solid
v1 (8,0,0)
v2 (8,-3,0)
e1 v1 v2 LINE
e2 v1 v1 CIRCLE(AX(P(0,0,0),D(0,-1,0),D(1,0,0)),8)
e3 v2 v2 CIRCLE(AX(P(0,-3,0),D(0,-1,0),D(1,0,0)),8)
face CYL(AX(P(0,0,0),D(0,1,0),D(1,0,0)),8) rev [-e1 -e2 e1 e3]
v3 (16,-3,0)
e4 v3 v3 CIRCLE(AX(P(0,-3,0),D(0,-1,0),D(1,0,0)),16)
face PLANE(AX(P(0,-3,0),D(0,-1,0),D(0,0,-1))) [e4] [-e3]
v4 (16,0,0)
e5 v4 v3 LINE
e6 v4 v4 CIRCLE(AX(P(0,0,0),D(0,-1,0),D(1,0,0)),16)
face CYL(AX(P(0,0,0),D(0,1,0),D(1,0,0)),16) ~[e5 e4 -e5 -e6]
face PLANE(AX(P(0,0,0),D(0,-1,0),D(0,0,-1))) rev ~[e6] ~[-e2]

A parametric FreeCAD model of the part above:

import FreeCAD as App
import Part
import Sketcher
from FreeCAD import Vector
Q = App.Units.Quantity

doc = App.newDocument("Part")
body = doc.addObject("PartDesign::Body", "Body")

sketch1 = body.newObject("Sketcher::SketchObject", "Sketch")
sketch1.AttachmentSupport = (doc.getObject("XZ_Plane"), [""])
sketch1.MapMode = "FlatFace"
sketch1.addGeometry(Part.Circle(Vector(0, 0, 0), Vector(0, 0, 1), 16), False)
sketch1.addGeometry(Part.Circle(Vector(0, 0, 0), Vector(0, 0, 1), 8), False)
sketch1.addConstraint(Sketcher.Constraint("Coincident", 0, 3, -1, 1))
sketch1.addConstraint(Sketcher.Constraint("Coincident", 1, 3, -1, 1))
sketch1.addConstraint(Sketcher.Constraint("Diameter", 0, Q("32 mm")))
sketch1.addConstraint(Sketcher.Constraint("Diameter", 1, Q("16 mm")))
pad1 = body.newObject("PartDesign::Pad", "Pad")
pad1.Profile = sketch1
pad1.Length = 3

doc.recompute()
